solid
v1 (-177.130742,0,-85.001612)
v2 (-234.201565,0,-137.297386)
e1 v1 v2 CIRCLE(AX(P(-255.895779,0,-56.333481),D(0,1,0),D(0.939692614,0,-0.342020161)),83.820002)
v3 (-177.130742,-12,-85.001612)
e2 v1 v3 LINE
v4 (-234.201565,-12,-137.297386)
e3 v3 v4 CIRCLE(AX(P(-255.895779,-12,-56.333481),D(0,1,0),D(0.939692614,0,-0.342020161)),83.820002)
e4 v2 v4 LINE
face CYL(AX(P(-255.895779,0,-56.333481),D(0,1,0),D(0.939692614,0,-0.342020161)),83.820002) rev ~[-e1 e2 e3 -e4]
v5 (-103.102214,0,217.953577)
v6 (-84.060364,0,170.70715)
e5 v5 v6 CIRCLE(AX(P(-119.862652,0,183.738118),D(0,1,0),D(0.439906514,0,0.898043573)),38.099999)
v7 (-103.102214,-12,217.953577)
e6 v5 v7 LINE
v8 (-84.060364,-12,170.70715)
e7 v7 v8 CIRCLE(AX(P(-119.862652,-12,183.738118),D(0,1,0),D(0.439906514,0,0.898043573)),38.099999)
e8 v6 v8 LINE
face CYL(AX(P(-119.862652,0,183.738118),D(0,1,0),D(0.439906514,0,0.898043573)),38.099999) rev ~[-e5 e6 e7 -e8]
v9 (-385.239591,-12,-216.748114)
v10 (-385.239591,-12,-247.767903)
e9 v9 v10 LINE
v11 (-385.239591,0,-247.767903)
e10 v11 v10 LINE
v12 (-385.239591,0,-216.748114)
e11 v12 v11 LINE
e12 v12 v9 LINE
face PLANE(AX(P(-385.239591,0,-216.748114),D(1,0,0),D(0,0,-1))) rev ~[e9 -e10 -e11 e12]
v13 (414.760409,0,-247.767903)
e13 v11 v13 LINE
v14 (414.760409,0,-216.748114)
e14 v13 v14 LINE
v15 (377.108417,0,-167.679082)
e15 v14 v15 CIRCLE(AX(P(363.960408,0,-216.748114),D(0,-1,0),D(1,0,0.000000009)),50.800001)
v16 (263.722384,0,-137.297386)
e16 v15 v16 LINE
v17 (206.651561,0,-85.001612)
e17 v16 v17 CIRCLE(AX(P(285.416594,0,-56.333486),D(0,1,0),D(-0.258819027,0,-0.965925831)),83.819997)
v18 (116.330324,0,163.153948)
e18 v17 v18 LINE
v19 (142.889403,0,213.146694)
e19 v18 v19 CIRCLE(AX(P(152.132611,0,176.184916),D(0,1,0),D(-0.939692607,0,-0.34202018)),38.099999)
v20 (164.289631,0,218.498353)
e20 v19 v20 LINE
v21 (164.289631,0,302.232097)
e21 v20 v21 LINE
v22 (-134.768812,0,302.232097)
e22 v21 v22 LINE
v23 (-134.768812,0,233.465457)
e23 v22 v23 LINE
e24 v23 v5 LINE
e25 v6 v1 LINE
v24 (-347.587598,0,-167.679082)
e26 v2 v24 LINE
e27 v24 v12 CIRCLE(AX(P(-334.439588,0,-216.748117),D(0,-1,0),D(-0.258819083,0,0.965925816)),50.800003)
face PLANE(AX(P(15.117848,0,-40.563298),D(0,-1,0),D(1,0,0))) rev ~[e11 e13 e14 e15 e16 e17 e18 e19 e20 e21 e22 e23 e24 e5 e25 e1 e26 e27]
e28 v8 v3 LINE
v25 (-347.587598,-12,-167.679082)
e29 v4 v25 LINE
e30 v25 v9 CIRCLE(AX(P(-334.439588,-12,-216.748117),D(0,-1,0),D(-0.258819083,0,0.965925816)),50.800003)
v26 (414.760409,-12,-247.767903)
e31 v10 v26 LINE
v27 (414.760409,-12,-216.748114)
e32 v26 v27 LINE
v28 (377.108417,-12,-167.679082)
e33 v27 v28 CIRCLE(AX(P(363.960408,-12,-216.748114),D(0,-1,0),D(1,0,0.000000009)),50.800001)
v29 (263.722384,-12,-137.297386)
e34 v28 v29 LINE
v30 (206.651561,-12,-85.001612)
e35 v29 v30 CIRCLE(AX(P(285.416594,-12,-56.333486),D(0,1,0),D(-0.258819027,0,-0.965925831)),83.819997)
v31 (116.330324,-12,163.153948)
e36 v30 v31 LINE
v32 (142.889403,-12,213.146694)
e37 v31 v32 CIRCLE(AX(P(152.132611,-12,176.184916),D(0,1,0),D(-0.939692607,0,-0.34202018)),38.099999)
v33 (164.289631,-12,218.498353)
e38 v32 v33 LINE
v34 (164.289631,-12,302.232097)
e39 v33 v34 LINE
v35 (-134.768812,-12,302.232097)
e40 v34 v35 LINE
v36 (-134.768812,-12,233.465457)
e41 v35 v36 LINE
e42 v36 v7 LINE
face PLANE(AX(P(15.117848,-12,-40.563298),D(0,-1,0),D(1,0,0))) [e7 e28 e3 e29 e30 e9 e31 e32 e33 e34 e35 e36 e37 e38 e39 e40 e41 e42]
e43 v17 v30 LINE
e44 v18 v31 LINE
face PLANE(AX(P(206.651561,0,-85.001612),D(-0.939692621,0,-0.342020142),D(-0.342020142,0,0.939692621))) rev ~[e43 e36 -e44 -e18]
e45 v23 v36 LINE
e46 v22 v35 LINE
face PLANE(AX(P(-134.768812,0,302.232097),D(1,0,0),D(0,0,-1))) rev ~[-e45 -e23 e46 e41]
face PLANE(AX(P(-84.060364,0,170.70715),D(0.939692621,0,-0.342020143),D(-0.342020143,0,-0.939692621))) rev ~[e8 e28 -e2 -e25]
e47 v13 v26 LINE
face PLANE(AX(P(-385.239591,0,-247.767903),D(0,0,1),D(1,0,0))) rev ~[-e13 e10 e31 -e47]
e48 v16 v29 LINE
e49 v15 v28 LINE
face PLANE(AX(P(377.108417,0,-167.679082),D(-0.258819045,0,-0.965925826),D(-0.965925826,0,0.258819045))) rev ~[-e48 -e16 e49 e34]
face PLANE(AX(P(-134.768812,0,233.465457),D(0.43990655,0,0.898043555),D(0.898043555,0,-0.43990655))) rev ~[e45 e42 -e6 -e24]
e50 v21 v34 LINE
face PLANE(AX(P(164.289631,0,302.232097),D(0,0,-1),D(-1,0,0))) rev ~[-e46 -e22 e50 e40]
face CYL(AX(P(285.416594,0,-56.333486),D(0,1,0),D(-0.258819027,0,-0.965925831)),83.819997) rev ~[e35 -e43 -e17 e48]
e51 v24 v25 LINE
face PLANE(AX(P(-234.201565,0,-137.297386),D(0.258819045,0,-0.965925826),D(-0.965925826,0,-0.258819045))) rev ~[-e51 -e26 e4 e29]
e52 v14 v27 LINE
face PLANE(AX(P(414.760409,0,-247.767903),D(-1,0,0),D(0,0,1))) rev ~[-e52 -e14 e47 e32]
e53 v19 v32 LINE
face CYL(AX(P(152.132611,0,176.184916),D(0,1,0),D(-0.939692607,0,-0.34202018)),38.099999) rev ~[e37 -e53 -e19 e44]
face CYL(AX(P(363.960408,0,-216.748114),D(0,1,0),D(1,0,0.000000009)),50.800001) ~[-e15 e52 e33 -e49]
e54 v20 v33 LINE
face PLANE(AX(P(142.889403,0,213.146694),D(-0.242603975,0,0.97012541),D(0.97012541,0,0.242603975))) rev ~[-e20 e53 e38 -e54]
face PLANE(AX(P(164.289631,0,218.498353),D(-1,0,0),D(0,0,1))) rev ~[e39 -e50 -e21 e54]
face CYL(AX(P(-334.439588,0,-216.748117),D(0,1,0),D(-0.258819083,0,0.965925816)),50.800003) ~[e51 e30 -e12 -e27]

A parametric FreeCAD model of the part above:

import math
import FreeCAD as App
import Part
import Sketcher
Q = App.Units.Quantity

doc = App.newDocument("Part")
body = doc.addObject("PartDesign::Body", "Body")

# Sketch on XZ plane
sketch1 = body.newObject("Sketcher::SketchObject", "Sketch")
sketch1.AttachmentSupport = (doc.getObject("XZ_Plane"), [""])
sketch1.MapMode = "FlatFace"
sketch1.addGeometry(Part.LineSegment(App.Vector(-385, -217, 0), App.Vector(-385, -248, 0)), False)
sketch1.addGeometry(Part.LineSegment(App.Vector(-385, -248, 0), App.Vector(415, -248, 0)), False)
sketch1.addGeometry(Part.LineSegment(App.Vector(415, -248, 0), App.Vector(415, -217, 0)), False)
sketch1.addGeometry(Part.ArcOfCircle(Part.Circle(App.Vector(364, -217, 0), App.Vector(0, 0, 1), 51), math.radians(0), math.radians(75)), False)
sketch1.addGeometry(Part.LineSegment(App.Vector(377, -168, 0), App.Vector(264, -137, 0)), False)
sketch1.addGeometry(Part.ArcOfCircle(Part.Circle(App.Vector(285, -56, 0), App.Vector(0, 0, 1), 84), math.radians(-160), math.radians(-105)), False)
sketch1.addGeometry(Part.LineSegment(App.Vector(207, -85, 0), App.Vector(116, 163, 0)), False)
sketch1.addGeometry(Part.ArcOfCircle(Part.Circle(App.Vector(152, 176, 0), App.Vector(0, 0, 1), 38), math.radians(104), math.radians(200)), False)
sketch1.addGeometry(Part.LineSegment(App.Vector(143, 213, 0), App.Vector(164, 218, 0)), False)
sketch1.addGeometry(Part.LineSegment(App.Vector(164, 218, 0), App.Vector(164, 302, 0)), False)
sketch1.addGeometry(Part.LineSegment(App.Vector(164, 302, 0), App.Vector(-135, 302, 0)), False)
sketch1.addGeometry(Part.LineSegment(App.Vector(-135, 302, 0), App.Vector(-135, 233, 0)), False)
sketch1.addGeometry(Part.LineSegment(App.Vector(-135, 233, 0), App.Vector(-103, 218, 0)), False)
sketch1.addGeometry(Part.ArcOfCircle(Part.Circle(App.Vector(-120, 184, 0), App.Vector(0, 0, 1), 38), math.radians(-20), math.radians(64)), False)
sketch1.addGeometry(Part.LineSegment(App.Vector(-84, 171, 0), App.Vector(-177, -85, 0)), False)
sketch1.addGeometry(Part.ArcOfCircle(Part.Circle(App.Vector(-256, -56, 0), App.Vector(0, 0, 1), 84), math.radians(-75), math.radians(-20)), False)
sketch1.addGeometry(Part.LineSegment(App.Vector(-234, -137, 0), App.Vector(-348, -168, 0)), False)
sketch1.addGeometry(Part.ArcOfCircle(Part.Circle(App.Vector(-334, -217, 0), App.Vector(0, 0, 1), 51), math.radians(105), math.radians(180)), False)
sketch1.addConstraint(Sketcher.Constraint("Coincident", 0, 2, 1, 1))
sketch1.addConstraint(Sketcher.Constraint("Coincident", 1, 2, 2, 1))
sketch1.addConstraint(Sketcher.Constraint("Tangent", 2, 2, 3, 1))
sketch1.addConstraint(Sketcher.Constraint("Tangent", 3, 2, 4, 1))
sketch1.addConstraint(Sketcher.Constraint("Tangent", 4, 2, 5, 2))
sketch1.addConstraint(Sketcher.Constraint("Tangent", 5, 1, 6, 1))
sketch1.addConstraint(Sketcher.Constraint("Tangent", 6, 2, 7, 2))
sketch1.addConstraint(Sketcher.Constraint("Tangent", 7, 1, 8, 1))
sketch1.addConstraint(Sketcher.Constraint("Coincident", 8, 2, 9, 1))
sketch1.addConstraint(Sketcher.Constraint("Coincident", 9, 2, 10, 1))
sketch1.addConstraint(Sketcher.Constraint("Coincident", 10, 2, 11, 1))
sketch1.addConstraint(Sketcher.Constraint("Coincident", 11, 2, 12, 1))
sketch1.addConstraint(Sketcher.Constraint("Tangent", 12, 2, 13, 2))
sketch1.addConstraint(Sketcher.Constraint("Tangent", 13, 1, 14, 1))
sketch1.addConstraint(Sketcher.Constraint("Tangent", 14, 2, 15, 2))
sketch1.addConstraint(Sketcher.Constraint("Tangent", 15, 1, 16, 1))
sketch1.addConstraint(Sketcher.Constraint("Tangent", 16, 2, 17, 1))
sketch1.addConstraint(Sketcher.Constraint("Tangent", 17, 2, 0, 1))
sketch1.addConstraint(Sketcher.Constraint("Vertical", 0))
sketch1.addConstraint(Sketcher.Constraint("Horizontal", 1))
sketch1.addConstraint(Sketcher.Constraint("Vertical", 2))
sketch1.addConstraint(Sketcher.Constraint("Vertical", 9))
sketch1.addConstraint(Sketcher.Constraint("Horizontal", 10))
sketch1.addConstraint(Sketcher.Constraint("Vertical", 11))
sketch1.addConstraint(Sketcher.Constraint("Equal", 7, 13))
sketch1.addConstraint(Sketcher.Constraint("Horizontal", 5, 1, 14, 2))
sketch1.addConstraint(Sketcher.Constraint("Horizontal", 4, 2, 15, 1))
sketch1.addConstraint(Sketcher.Constraint("Horizontal", 3, 2, 16, 2))
sketch1.addConstraint(Sketcher.Constraint("Horizontal", 2, 2, 17, 2))
sketch1.addConstraint(Sketcher.Constraint("Equal", 4, 16))
sketch1.addConstraint(Sketcher.Constraint("Radius", 3, Q("2 in")))
sketch1.addConstraint(Sketcher.Constraint("Radius", 5, Q("3.2999999 in")))
sketch1.addConstraint(Sketcher.Constraint("Radius", 7, Q("1.4999999 in")))
sketch1.addConstraint(Sketcher.Constraint("Radius", 15, Q("3.3000001 in")))
sketch1.addConstraint(Sketcher.Constraint("Angle", 4, Q("165 deg")))
sketch1.addConstraint(Sketcher.Constraint("Angle", 6, Q("110 deg")))
sketch1.addConstraint(Sketcher.Constraint("DistanceX", 1, 1, 1, 2, Q("800 mm")))
sketch1.addConstraint(Sketcher.Constraint("DistanceX", 5, 1, 3, 2, Q("6.7108998 in")))
sketch1.addConstraint(Sketcher.Constraint("DistanceY", 0, 2, 0, 1, Q("31.019789 mm")))
sketch1.addConstraint(Sketcher.Constraint("DistanceY", 11, 2, 11, 1, Q("68.76664 mm")))
sketch1.addConstraint(Sketcher.Constraint("DistanceX", 16, 2, -1, 1, Q("347.587598 mm")))
sketch1.addConstraint(Sketcher.Constraint("DistanceY", 7, 3, 13, 3, Q("7.553201 mm")))
sketch1.addConstraint(Sketcher.Constraint("DistanceY", 15, 3, 13, 3, Q("240.071599 mm")))
sketch1.addConstraint(Sketcher.Constraint("Distance", 8, Q("22.059239 mm")))
sketch1.addConstraint(Sketcher.Constraint("Distance", 12, Q("35.261762 mm")))
sketch1.addConstraint(Sketcher.Constraint("DistanceX", 10, 2, 10, 1, Q("299.058443 mm")))
sketch1.addConstraint(Sketcher.Constraint("DistanceY", 9, 1, 9, 2, Q("83.733744 mm")))
sketch1.addConstraint(Sketcher.Constraint("DistanceY", 15, 3, -1, 1, Q("56.333481 mm")))
pad1 = body.newObject("PartDesign::Pad", "Pad")
pad1.Profile = sketch1
pad1.Length = 12

doc.recompute()
